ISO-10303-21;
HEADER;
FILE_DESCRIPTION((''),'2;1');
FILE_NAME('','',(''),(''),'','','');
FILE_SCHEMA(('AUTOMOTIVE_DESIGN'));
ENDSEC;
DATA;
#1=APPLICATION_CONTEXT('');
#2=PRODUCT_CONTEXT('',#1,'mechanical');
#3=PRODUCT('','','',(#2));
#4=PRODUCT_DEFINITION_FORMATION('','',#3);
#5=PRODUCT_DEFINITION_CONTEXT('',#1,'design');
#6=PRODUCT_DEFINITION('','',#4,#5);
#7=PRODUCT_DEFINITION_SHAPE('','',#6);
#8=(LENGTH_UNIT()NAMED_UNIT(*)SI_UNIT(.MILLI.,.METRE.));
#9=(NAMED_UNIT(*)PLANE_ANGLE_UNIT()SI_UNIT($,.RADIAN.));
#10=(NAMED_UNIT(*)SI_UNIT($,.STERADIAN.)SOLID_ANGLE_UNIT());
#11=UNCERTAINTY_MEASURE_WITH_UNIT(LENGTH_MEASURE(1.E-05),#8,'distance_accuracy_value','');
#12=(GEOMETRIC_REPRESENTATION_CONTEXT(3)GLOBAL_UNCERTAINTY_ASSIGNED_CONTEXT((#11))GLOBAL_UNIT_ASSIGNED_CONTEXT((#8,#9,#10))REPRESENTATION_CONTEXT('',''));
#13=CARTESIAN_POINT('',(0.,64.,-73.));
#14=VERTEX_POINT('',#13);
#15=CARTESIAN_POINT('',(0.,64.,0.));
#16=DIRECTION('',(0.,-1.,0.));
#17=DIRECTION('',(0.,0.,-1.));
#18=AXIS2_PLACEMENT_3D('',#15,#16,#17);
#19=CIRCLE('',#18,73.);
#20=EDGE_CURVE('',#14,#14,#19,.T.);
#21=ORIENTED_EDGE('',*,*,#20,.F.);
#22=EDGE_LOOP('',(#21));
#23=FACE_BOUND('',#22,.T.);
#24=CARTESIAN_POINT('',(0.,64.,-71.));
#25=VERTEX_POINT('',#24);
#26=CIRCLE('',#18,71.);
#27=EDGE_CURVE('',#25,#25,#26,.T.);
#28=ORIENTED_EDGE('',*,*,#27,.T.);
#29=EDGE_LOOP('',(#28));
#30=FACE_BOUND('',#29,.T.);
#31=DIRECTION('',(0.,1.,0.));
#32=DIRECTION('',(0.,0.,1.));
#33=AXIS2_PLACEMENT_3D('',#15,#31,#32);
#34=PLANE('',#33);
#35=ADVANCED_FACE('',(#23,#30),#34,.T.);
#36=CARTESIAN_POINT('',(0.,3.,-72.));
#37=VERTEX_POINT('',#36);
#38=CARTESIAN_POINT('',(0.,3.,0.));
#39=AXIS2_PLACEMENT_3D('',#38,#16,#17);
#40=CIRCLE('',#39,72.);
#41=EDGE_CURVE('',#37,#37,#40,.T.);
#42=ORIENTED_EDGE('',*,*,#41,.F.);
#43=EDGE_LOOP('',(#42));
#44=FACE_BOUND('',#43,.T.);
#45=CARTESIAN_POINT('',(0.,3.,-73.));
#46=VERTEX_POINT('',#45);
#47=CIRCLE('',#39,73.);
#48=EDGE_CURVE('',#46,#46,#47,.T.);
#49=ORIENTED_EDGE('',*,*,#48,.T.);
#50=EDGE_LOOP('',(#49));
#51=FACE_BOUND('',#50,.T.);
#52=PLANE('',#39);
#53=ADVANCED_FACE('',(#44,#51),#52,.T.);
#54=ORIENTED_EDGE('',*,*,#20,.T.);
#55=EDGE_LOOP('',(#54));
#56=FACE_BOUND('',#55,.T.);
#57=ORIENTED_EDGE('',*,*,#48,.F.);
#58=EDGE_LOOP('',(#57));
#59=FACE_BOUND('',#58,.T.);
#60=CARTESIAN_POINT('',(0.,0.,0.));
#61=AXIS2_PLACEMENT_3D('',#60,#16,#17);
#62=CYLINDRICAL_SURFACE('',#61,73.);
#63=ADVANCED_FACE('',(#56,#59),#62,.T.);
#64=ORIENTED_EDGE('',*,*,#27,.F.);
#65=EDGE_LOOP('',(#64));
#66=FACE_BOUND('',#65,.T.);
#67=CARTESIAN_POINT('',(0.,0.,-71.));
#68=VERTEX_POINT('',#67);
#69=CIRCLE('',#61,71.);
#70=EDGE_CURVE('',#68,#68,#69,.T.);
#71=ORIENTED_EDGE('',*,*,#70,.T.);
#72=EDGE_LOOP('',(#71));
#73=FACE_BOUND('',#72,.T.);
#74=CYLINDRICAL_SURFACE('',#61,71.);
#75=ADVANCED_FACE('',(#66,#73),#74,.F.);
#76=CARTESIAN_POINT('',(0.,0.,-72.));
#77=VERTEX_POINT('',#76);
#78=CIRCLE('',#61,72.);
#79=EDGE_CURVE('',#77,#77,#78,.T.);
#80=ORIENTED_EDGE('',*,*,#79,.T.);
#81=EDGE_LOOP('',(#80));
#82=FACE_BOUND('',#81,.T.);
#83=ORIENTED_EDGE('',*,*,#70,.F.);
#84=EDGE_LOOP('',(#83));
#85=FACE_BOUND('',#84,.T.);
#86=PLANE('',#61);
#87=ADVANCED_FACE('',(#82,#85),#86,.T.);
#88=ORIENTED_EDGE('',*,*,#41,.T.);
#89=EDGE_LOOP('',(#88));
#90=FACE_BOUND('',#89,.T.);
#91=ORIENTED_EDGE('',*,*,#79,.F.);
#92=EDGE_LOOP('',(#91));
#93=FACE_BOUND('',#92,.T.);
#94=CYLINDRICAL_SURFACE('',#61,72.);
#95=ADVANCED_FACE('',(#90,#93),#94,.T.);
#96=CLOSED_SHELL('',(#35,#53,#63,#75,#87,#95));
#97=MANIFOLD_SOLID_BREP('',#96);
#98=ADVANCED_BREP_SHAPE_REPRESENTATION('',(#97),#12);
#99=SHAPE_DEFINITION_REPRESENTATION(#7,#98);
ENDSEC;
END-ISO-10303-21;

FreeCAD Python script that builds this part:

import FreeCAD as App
import Part
import Sketcher
from FreeCAD import Vector
Q = App.Units.Quantity

doc = App.newDocument("Part")
params = doc.addObject("Spreadsheet::Sheet", "Params")
for row, (alias, value) in enumerate([
    ("sketch1_width", "2 mm"),
    ("sketch1_height", "64 mm"),
    ("sketch1_height2", "61 mm"),
    ("revolution_angle", "360 deg"),
], start=1):
    params.set(f"A{row}", alias)
    params.set(f"B{row}", "=" + value)
    params.setAlias(f"B{row}", alias)

body = doc.addObject("PartDesign::Body", "Body")

sketch1 = body.newObject("Sketcher::SketchObject", "Sketch")
sketch1.AttachmentSupport = (doc.getObject("XY_Plane"), [""])
sketch1.MapMode = "FlatFace"
sketch1.addGeometry([
    Part.LineSegment(Vector(-71, 0, 0), Vector(-71, 64, 0)),
    Part.LineSegment(Vector(-71, 64, 0), Vector(-73, 64, 0)),
    Part.LineSegment(Vector(-73, 64, 0), Vector(-73, 3, 0)),
    Part.LineSegment(Vector(-73, 3, 0), Vector(-72, 3, 0)),
    Part.LineSegment(Vector(-72, 3, 0), Vector(-72, 0, 0)),
    Part.LineSegment(Vector(-72, 0, 0), Vector(-71, 0, 0)),
], False)
sketch1.addConstraint([
    Sketcher.Constraint("Coincident", 0, 2, 1, 1),
    Sketcher.Constraint("Coincident", 1, 2, 2, 1),
    Sketcher.Constraint("Coincident", 2, 2, 3, 1),
    Sketcher.Constraint("Coincident", 3, 2, 4, 1),
    Sketcher.Constraint("Coincident", 4, 2, 5, 1),
    Sketcher.Constraint("Coincident", 5, 2, 0, 1),
    Sketcher.Constraint("Vertical", 0),
    Sketcher.Constraint("Horizontal", 1),
    Sketcher.Constraint("Vertical", 2),
    Sketcher.Constraint("Horizontal", 3),
    Sketcher.Constraint("Vertical", 4),
    Sketcher.Constraint("Horizontal", 5),
    Sketcher.Constraint("PointOnObject", 4, 2, -1),
    Sketcher.Constraint("Equal", 3, 5),
    Sketcher.Constraint("DistanceX", 1, 2, 1, 1, Q("2 mm")),
    Sketcher.Constraint("DistanceY", 0, 1, 0, 2, Q("64 mm")),
    Sketcher.Constraint("DistanceY", 2, 2, 2, 1, Q("61 mm")),
    Sketcher.Constraint("DistanceX", 0, 2, -1, 1, Q("71 mm")),
])
sketch1.setExpression("Constraints[14]", "Params.sketch1_width")
sketch1.setExpression("Constraints[15]", "Params.sketch1_height")
sketch1.setExpression("Constraints[16]", "Params.sketch1_height2")
revolution = body.newObject("PartDesign::Revolution", "Revolution")
revolution.Profile = sketch1
revolution.ReferenceAxis = (sketch1, ["V_Axis"])
revolution.setExpression("Angle", "Params.revolution_angle")

doc.recompute()
